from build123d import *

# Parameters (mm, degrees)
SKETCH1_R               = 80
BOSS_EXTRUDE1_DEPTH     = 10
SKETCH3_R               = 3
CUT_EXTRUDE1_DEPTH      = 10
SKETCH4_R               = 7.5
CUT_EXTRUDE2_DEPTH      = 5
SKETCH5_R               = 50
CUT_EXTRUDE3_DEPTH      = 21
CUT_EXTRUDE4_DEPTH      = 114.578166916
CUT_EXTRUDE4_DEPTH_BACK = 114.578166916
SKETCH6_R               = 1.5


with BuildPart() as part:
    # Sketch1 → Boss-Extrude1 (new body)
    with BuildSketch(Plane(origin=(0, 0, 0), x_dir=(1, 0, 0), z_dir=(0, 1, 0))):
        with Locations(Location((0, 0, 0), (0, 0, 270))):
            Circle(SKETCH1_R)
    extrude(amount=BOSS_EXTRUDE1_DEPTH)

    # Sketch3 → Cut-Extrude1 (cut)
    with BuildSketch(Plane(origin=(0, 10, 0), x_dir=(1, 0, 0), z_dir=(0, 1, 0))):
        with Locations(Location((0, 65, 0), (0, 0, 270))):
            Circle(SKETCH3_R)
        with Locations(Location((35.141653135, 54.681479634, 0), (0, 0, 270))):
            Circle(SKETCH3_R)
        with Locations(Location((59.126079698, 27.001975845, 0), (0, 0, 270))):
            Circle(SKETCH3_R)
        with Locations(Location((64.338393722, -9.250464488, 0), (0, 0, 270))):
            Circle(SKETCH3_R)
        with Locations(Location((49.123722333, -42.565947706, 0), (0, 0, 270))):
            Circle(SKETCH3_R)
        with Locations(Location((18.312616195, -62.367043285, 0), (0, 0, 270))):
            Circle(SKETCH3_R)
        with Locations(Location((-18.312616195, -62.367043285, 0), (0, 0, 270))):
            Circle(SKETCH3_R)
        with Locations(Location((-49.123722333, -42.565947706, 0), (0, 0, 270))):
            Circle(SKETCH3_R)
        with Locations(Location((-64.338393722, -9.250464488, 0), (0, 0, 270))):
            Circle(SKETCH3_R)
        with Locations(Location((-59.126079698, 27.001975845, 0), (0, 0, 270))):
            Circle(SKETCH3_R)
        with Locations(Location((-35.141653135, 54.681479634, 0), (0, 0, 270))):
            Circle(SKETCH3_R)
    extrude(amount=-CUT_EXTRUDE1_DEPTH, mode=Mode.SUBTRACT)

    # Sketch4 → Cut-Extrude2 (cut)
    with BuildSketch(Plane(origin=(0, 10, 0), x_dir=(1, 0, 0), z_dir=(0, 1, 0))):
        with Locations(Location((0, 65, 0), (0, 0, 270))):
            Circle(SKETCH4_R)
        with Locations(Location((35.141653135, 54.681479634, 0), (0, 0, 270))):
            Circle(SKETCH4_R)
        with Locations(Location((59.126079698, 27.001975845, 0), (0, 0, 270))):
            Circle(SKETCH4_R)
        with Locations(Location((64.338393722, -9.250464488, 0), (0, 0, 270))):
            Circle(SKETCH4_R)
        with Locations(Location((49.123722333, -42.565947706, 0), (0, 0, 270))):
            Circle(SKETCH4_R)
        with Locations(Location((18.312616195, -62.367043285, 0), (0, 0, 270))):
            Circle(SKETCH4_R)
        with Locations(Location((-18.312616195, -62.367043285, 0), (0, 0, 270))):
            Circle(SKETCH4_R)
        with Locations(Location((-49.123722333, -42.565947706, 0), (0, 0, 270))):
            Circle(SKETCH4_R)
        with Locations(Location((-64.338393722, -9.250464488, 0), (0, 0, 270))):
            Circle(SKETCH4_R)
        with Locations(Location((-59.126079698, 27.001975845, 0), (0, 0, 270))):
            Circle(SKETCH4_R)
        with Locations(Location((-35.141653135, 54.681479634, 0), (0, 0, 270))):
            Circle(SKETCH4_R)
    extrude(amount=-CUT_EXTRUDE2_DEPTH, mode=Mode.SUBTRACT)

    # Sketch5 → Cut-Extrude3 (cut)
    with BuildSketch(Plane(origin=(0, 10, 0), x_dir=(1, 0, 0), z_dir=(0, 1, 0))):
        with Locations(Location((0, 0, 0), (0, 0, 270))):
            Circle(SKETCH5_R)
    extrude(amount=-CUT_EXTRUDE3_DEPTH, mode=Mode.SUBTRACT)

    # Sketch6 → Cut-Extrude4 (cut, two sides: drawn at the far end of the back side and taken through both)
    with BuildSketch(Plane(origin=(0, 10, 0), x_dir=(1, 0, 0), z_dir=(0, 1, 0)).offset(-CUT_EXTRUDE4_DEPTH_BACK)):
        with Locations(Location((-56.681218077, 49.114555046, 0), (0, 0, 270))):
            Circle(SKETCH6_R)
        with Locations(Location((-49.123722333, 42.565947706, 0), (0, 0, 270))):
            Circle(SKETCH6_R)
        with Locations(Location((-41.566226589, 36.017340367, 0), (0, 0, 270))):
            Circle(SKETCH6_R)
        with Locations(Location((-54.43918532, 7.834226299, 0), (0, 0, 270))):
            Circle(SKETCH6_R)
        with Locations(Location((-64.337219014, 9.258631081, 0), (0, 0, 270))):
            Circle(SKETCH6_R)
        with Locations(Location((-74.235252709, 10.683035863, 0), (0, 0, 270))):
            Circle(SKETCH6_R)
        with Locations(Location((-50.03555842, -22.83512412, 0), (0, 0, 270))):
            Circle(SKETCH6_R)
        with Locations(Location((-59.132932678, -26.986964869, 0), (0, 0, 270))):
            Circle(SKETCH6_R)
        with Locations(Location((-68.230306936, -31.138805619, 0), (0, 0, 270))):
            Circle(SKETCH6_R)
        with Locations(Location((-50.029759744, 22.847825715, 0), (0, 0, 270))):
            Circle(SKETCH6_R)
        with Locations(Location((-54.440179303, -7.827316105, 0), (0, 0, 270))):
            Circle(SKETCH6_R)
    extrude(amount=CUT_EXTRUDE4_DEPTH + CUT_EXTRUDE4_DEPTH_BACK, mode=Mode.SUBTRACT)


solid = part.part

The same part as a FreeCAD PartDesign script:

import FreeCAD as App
import Part
import Sketcher

doc = App.newDocument("Part")
body = doc.addObject("PartDesign::Body", "Body")

# Sketch on XZ plane
sketch1 = body.newObject("Sketcher::SketchObject", "Sketch")
sketch1.AttachmentSupport = (doc.getObject("XZ_Plane"), [""])
sketch1.MapMode = "FlatFace"
sketch1.addGeometry(Part.Circle(App.Vector(0, 0, 0), App.Vector(0, 0, 1), 80), False)
sketch1.addConstraint(Sketcher.Constraint("Coincident", 0, 3, -1, 1))
sketch1.addConstraint(Sketcher.Constraint("Diameter", 0, 160.0))
pad1 = body.newObject("PartDesign::Pad", "Pad")
pad1.Profile = sketch1
pad1.Length = 10
pad1.Reversed = True

# Sketch on XZ plane
sketch2 = body.newObject("Sketcher::SketchObject", "Sketch001")
sketch2.AttachmentSupport = (doc.getObject("XZ_Plane"), [""])
sketch2.MapMode = "FlatFace"
sketch2.AttachmentOffset = App.Placement(App.Vector(0, 0, -10), App.Rotation())
sketch2.addGeometry(Part.Circle(App.Vector(0, -65, 0), App.Vector(0, 0, 1), 3), False)
sketch2.addGeometry(Part.Circle(App.Vector(35.1, -54.7, 0), App.Vector(0, 0, 1), 3), False)
sketch2.addGeometry(Part.Circle(App.Vector(59.1, -27, 0), App.Vector(0, 0, 1), 3), False)
sketch2.addGeometry(Part.Circle(App.Vector(64.3, 9.3, 0), App.Vector(0, 0, 1), 3), False)
sketch2.addGeometry(Part.Circle(App.Vector(49.1, 42.6, 0), App.Vector(0, 0, 1), 3), False)
sketch2.addGeometry(Part.Circle(App.Vector(18.3, 62.4, 0), App.Vector(0, 0, 1), 3), False)
sketch2.addGeometry(Part.Circle(App.Vector(-18.3, 62.4, 0), App.Vector(0, 0, 1), 3), False)
sketch2.addGeometry(Part.Circle(App.Vector(-49.1, 42.6, 0), App.Vector(0, 0, 1), 3), False)
sketch2.addGeometry(Part.Circle(App.Vector(-64.3, 9.3, 0), App.Vector(0, 0, 1), 3), False)
sketch2.addGeometry(Part.Circle(App.Vector(-59.1, -27, 0), App.Vector(0, 0, 1), 3), False)
sketch2.addGeometry(Part.Circle(App.Vector(-35.1, -54.7, 0), App.Vector(0, 0, 1), 3), False)
sketch2.addConstraint(Sketcher.Constraint("Equal", 0, 1))
sketch2.addConstraint(Sketcher.Constraint("Equal", 1, 2))
sketch2.addConstraint(Sketcher.Constraint("Equal", 2, 3))
sketch2.addConstraint(Sketcher.Constraint("Equal", 3, 4))
sketch2.addConstraint(Sketcher.Constraint("Equal", 4, 5))
sketch2.addConstraint(Sketcher.Constraint("Equal", 5, 6))
sketch2.addConstraint(Sketcher.Constraint("Equal", 6, 7))
sketch2.addConstraint(Sketcher.Constraint("Equal", 7, 8))
sketch2.addConstraint(Sketcher.Constraint("Equal", 8, 9))
sketch2.addConstraint(Sketcher.Constraint("Equal", 9, 10))
sketch2.addConstraint(Sketcher.Constraint("Symmetric", 5, 3, 6, 3, -2))
sketch2.addConstraint(Sketcher.Constraint("Symmetric", 4, 3, 7, 3, -2))
sketch2.addConstraint(Sketcher.Constraint("Symmetric", 3, 3, 8, 3, -2))
sketch2.addConstraint(Sketcher.Constraint("Symmetric", 2, 3, 9, 3, -2))
sketch2.addConstraint(Sketcher.Constraint("Symmetric", 1, 3, 10, 3, -2))
sketch2.addConstraint(Sketcher.Constraint("PointOnObject", 0, 3, -2))
sketch2.addConstraint(Sketcher.Constraint("Diameter", 0, 6.0))
sketch2.addConstraint(Sketcher.Constraint("DistanceY", 0, 3, -1, 1, 65.0))
sketch2.addConstraint(Sketcher.Constraint("DistanceY", 1, 3, -1, 1, 54.68148))
sketch2.addConstraint(Sketcher.Constraint("DistanceX", -1, 1, 2, 3, 59.12608))
sketch2.addConstraint(Sketcher.Constraint("DistanceY", 2, 3, 3, 3, 36.25244))
sketch2.addConstraint(Sketcher.Constraint("DistanceX", 1, 3, 3, 3, 29.196741))
sketch2.addConstraint(Sketcher.Constraint("DistanceX", 4, 3, 3, 3, 15.214671))
sketch2.addConstraint(Sketcher.Constraint("DistanceY", 3, 3, 5, 3, 53.116579))
sketch2.addConstraint(Sketcher.Constraint("DistanceX", 6, 3, 4, 3, 67.436339))
sketch2.addConstraint(Sketcher.Constraint("DistanceX", -1, 1, 1, 3, 35.141653))
sketch2.addConstraint(Sketcher.Constraint("DistanceY", 2, 3, -1, 1, 27.001976))
sketch2.addConstraint(Sketcher.Constraint("DistanceY", -1, 1, 4, 3, 42.565948))
pocket1 = body.newObject("PartDesign::Pocket", "Pocket")
pocket1.Profile = sketch2
pocket1.Length = 10
pocket1.Reversed = True

# Sketch on XZ plane
sketch3 = body.newObject("Sketcher::SketchObject", "Sketch002")
sketch3.AttachmentSupport = (doc.getObject("XZ_Plane"), [""])
sketch3.MapMode = "FlatFace"
sketch3.AttachmentOffset = App.Placement(App.Vector(0, 0, -10), App.Rotation())
sketch3.addGeometry(Part.Circle(App.Vector(0, -65, 0), App.Vector(0, 0, 1), 8), False)
sketch3.addGeometry(Part.Circle(App.Vector(35, -55, 0), App.Vector(0, 0, 1), 8), False)
sketch3.addGeometry(Part.Circle(App.Vector(59, -27, 0), App.Vector(0, 0, 1), 8), False)
sketch3.addGeometry(Part.Circle(App.Vector(64, 9, 0), App.Vector(0, 0, 1), 8), False)
sketch3.addGeometry(Part.Circle(App.Vector(49, 43, 0), App.Vector(0, 0, 1), 8), False)
sketch3.addGeometry(Part.Circle(App.Vector(18, 62, 0), App.Vector(0, 0, 1), 8), False)
sketch3.addGeometry(Part.Circle(App.Vector(-18, 62, 0), App.Vector(0, 0, 1), 8), False)
sketch3.addGeometry(Part.Circle(App.Vector(-49, 43, 0), App.Vector(0, 0, 1), 8), False)
sketch3.addGeometry(Part.Circle(App.Vector(-64, 9, 0), App.Vector(0, 0, 1), 8), False)
sketch3.addGeometry(Part.Circle(App.Vector(-59, -27, 0), App.Vector(0, 0, 1), 8), False)
sketch3.addGeometry(Part.Circle(App.Vector(-35, -55, 0), App.Vector(0, 0, 1), 8), False)
sketch3.addConstraint(Sketcher.Constraint("Equal", 0, 1))
sketch3.addConstraint(Sketcher.Constraint("Equal", 1, 2))
sketch3.addConstraint(Sketcher.Constraint("Equal", 2, 3))
sketch3.addConstraint(Sketcher.Constraint("Equal", 3, 4))
sketch3.addConstraint(Sketcher.Constraint("Equal", 4, 5))
sketch3.addConstraint(Sketcher.Constraint("Equal", 5, 6))
sketch3.addConstraint(Sketcher.Constraint("Equal", 6, 7))
sketch3.addConstraint(Sketcher.Constraint("Equal", 7, 8))
sketch3.addConstraint(Sketcher.Constraint("Equal", 8, 9))
sketch3.addConstraint(Sketcher.Constraint("Equal", 9, 10))
sketch3.addConstraint(Sketcher.Constraint("Symmetric", 5, 3, 6, 3, -2))
sketch3.addConstraint(Sketcher.Constraint("Symmetric", 4, 3, 7, 3, -2))
sketch3.addConstraint(Sketcher.Constraint("Symmetric", 3, 3, 8, 3, -2))
sketch3.addConstraint(Sketcher.Constraint("Symmetric", 2, 3, 9, 3, -2))
sketch3.addConstraint(Sketcher.Constraint("Symmetric", 1, 3, 10, 3, -2))
sketch3.addConstraint(Sketcher.Constraint("PointOnObject", 0, 3, -2))
sketch3.addConstraint(Sketcher.Constraint("Diameter", 0, 15.0))
sketch3.addConstraint(Sketcher.Constraint("DistanceY", 0, 3, -1, 1, 65.0))
sketch3.addConstraint(Sketcher.Constraint("DistanceY", 1, 3, -1, 1, 54.68148))
sketch3.addConstraint(Sketcher.Constraint("DistanceX", -1, 1, 2, 3, 59.12608))
sketch3.addConstraint(Sketcher.Constraint("DistanceY", 2, 3, 3, 3, 36.25244))
sketch3.addConstraint(Sketcher.Constraint("DistanceX", 1, 3, 3, 3, 29.196741))
sketch3.addConstraint(Sketcher.Constraint("DistanceX", 4, 3, 3, 3, 15.214671))
sketch3.addConstraint(Sketcher.Constraint("DistanceY", 3, 3, 5, 3, 53.116579))
sketch3.addConstraint(Sketcher.Constraint("DistanceX", 6, 3, 4, 3, 67.436339))
sketch3.addConstraint(Sketcher.Constraint("DistanceX", -1, 1, 1, 3, 35.141653))
sketch3.addConstraint(Sketcher.Constraint("DistanceY", 2, 3, -1, 1, 27.001976))
sketch3.addConstraint(Sketcher.Constraint("DistanceY", -1, 1, 4, 3, 42.565948))
pocket2 = body.newObject("PartDesign::Pocket", "Pocket001")
pocket2.Profile = sketch3
pocket2.Length = 5
pocket2.Reversed = True

# Sketch on XZ plane
sketch4 = body.newObject("Sketcher::SketchObject", "Sketch003")
sketch4.AttachmentSupport = (doc.getObject("XZ_Plane"), [""])
sketch4.MapMode = "FlatFace"
sketch4.AttachmentOffset = App.Placement(App.Vector(0, 0, -10), App.Rotation())
sketch4.addGeometry(Part.Circle(App.Vector(0, 0, 0), App.Vector(0, 0, 1), 50), False)
sketch4.addConstraint(Sketcher.Constraint("Coincident", 0, 3, -1, 1))
sketch4.addConstraint(Sketcher.Constraint("Diameter", 0, 100.0))
pocket3 = body.newObject("PartDesign::Pocket", "Pocket002")
pocket3.Profile = sketch4
pocket3.Length = 21
pocket3.Reversed = True

# Sketch on XZ plane
sketch5 = body.newObject("Sketcher::SketchObject", "Sketch004")
sketch5.AttachmentSupport = (doc.getObject("XZ_Plane"), [""])
sketch5.MapMode = "FlatFace"
sketch5.AttachmentOffset = App.Placement(App.Vector(0, 0, -10), App.Rotation())
sketch5.addGeometry(Part.Circle(App.Vector(-56.7, -49.1, 0), App.Vector(0, 0, 1), 1.5), False)
sketch5.addGeometry(Part.Circle(App.Vector(-49.1, -42.6, 0), App.Vector(0, 0, 1), 1.5), False)
sketch5.addGeometry(Part.Circle(App.Vector(-41.6, -36, 0), App.Vector(0, 0, 1), 1.5), False)
sketch5.addGeometry(Part.Circle(App.Vector(-54.4, -7.8, 0), App.Vector(0, 0, 1), 1.5), False)
sketch5.addGeometry(Part.Circle(App.Vector(-64.3, -9.3, 0), App.Vector(0, 0, 1), 1.5), False)
sketch5.addGeometry(Part.Circle(App.Vector(-74.2, -10.7, 0), App.Vector(0, 0, 1), 1.5), False)
sketch5.addGeometry(Part.Circle(App.Vector(-50, 22.8, 0), App.Vector(0, 0, 1), 1.5), False)
sketch5.addGeometry(Part.Circle(App.Vector(-59.1, 27, 0), App.Vector(0, 0, 1), 1.5), False)
sketch5.addGeometry(Part.Circle(App.Vector(-68.2, 31.1, 0), App.Vector(0, 0, 1), 1.5), False)
sketch5.addGeometry(Part.Circle(App.Vector(-50, -22.8, 0), App.Vector(0, 0, 1), 1.5), False)
sketch5.addGeometry(Part.Circle(App.Vector(-54.4, 7.8, 0), App.Vector(0, 0, 1), 1.5), False)
sketch5.addConstraint(Sketcher.Constraint("Equal", 0, 1))
sketch5.addConstraint(Sketcher.Constraint("Equal", 1, 2))
sketch5.addConstraint(Sketcher.Constraint("Equal", 2, 3))
sketch5.addConstraint(Sketcher.Constraint("Equal", 3, 4))
sketch5.addConstraint(Sketcher.Constraint("Equal", 4, 5))
sketch5.addConstraint(Sketcher.Constraint("Equal", 5, 6))
sketch5.addConstraint(Sketcher.Constraint("Equal", 6, 7))
sketch5.addConstraint(Sketcher.Constraint("Equal", 7, 8))
sketch5.addConstraint(Sketcher.Constraint("Equal", 8, 9))
sketch5.addConstraint(Sketcher.Constraint("Equal", 9, 10))
sketch5.addConstraint(Sketcher.Constraint("Diameter", 0, 3.0))
sketch5.addConstraint(Sketcher.Constraint("DistanceY", 5, 3, 7, 3, 37.670001))
sketch5.addConstraint(Sketcher.Constraint("DistanceX", 4, 3, 0, 3, 7.656001))
sketch5.addConstraint(Sketcher.Constraint("DistanceY", 9, 3, 3, 3, 15.013599))
sketch5.addConstraint(Sketcher.Constraint("DistanceX", 0, 3, -1, 1, 56.681218))
sketch5.addConstraint(Sketcher.Constraint("DistanceY", 2, 3, -1, 1, 36.01734))
sketch5.addConstraint(Sketcher.Constraint("DistanceY", 4, 3, -1, 1, 9.258631))
sketch5.addConstraint(Sketcher.Constraint("DistanceX", 6, 3, -1, 1, 50.035558))
sketch5.addConstraint(Sketcher.Constraint("DistanceX", 9, 3, -1, 1, 50.02976))
sketch5.addConstraint(Sketcher.Constraint("DistanceX", 10, 3, -1, 1, 54.440179))
sketch5.addConstraint(Sketcher.Constraint("DistanceX", 0, 3, 2, 3, 15.114991))
sketch5.addConstraint(Sketcher.Constraint("DistanceX", 3, 3, 2, 3, 12.872959))
sketch5.addConstraint(Sketcher.Constraint("DistanceY", 1, 3, 3, 3, 34.731721))
sketch5.addConstraint(Sketcher.Constraint("DistanceY", 0, 3, 3, 3, 41.280329))
sketch5.addConstraint(Sketcher.Constraint("DistanceY", 5, 3, 3, 3, 2.84881))
sketch5.addConstraint(Sketcher.Constraint("DistanceX", 5, 3, 1, 3, 25.11153))
sketch5.addConstraint(Sketcher.Constraint("DistanceY", 3, 3, 6, 3, 30.66935))
sketch5.addConstraint(Sketcher.Constraint("DistanceX", 5, 3, 7, 3, 15.10232))
sketch5.addConstraint(Sketcher.Constraint("DistanceY", 7, 3, 8, 3, 4.151841))
sketch5.addConstraint(Sketcher.Constraint("DistanceX", 8, 3, 6, 3, 18.194749))
sketch5.addConstraint(Sketcher.Constraint("DistanceY", 10, 3, 6, 3, 15.007808))
sketch5.addConstraint(Sketcher.Constraint("DistanceY", 0, 3, -1, 1, 49.114555))
sketch5.addConstraint(Sketcher.Constraint("DistanceX", 1, 3, -1, 1, 49.123722))
pocket4 = body.newObject("PartDesign::Pocket", "Pocket003")
pocket4.Profile = sketch5
pocket4.Type = "ThroughAll"
pocket4.Midplane = True

doc.recompute()
